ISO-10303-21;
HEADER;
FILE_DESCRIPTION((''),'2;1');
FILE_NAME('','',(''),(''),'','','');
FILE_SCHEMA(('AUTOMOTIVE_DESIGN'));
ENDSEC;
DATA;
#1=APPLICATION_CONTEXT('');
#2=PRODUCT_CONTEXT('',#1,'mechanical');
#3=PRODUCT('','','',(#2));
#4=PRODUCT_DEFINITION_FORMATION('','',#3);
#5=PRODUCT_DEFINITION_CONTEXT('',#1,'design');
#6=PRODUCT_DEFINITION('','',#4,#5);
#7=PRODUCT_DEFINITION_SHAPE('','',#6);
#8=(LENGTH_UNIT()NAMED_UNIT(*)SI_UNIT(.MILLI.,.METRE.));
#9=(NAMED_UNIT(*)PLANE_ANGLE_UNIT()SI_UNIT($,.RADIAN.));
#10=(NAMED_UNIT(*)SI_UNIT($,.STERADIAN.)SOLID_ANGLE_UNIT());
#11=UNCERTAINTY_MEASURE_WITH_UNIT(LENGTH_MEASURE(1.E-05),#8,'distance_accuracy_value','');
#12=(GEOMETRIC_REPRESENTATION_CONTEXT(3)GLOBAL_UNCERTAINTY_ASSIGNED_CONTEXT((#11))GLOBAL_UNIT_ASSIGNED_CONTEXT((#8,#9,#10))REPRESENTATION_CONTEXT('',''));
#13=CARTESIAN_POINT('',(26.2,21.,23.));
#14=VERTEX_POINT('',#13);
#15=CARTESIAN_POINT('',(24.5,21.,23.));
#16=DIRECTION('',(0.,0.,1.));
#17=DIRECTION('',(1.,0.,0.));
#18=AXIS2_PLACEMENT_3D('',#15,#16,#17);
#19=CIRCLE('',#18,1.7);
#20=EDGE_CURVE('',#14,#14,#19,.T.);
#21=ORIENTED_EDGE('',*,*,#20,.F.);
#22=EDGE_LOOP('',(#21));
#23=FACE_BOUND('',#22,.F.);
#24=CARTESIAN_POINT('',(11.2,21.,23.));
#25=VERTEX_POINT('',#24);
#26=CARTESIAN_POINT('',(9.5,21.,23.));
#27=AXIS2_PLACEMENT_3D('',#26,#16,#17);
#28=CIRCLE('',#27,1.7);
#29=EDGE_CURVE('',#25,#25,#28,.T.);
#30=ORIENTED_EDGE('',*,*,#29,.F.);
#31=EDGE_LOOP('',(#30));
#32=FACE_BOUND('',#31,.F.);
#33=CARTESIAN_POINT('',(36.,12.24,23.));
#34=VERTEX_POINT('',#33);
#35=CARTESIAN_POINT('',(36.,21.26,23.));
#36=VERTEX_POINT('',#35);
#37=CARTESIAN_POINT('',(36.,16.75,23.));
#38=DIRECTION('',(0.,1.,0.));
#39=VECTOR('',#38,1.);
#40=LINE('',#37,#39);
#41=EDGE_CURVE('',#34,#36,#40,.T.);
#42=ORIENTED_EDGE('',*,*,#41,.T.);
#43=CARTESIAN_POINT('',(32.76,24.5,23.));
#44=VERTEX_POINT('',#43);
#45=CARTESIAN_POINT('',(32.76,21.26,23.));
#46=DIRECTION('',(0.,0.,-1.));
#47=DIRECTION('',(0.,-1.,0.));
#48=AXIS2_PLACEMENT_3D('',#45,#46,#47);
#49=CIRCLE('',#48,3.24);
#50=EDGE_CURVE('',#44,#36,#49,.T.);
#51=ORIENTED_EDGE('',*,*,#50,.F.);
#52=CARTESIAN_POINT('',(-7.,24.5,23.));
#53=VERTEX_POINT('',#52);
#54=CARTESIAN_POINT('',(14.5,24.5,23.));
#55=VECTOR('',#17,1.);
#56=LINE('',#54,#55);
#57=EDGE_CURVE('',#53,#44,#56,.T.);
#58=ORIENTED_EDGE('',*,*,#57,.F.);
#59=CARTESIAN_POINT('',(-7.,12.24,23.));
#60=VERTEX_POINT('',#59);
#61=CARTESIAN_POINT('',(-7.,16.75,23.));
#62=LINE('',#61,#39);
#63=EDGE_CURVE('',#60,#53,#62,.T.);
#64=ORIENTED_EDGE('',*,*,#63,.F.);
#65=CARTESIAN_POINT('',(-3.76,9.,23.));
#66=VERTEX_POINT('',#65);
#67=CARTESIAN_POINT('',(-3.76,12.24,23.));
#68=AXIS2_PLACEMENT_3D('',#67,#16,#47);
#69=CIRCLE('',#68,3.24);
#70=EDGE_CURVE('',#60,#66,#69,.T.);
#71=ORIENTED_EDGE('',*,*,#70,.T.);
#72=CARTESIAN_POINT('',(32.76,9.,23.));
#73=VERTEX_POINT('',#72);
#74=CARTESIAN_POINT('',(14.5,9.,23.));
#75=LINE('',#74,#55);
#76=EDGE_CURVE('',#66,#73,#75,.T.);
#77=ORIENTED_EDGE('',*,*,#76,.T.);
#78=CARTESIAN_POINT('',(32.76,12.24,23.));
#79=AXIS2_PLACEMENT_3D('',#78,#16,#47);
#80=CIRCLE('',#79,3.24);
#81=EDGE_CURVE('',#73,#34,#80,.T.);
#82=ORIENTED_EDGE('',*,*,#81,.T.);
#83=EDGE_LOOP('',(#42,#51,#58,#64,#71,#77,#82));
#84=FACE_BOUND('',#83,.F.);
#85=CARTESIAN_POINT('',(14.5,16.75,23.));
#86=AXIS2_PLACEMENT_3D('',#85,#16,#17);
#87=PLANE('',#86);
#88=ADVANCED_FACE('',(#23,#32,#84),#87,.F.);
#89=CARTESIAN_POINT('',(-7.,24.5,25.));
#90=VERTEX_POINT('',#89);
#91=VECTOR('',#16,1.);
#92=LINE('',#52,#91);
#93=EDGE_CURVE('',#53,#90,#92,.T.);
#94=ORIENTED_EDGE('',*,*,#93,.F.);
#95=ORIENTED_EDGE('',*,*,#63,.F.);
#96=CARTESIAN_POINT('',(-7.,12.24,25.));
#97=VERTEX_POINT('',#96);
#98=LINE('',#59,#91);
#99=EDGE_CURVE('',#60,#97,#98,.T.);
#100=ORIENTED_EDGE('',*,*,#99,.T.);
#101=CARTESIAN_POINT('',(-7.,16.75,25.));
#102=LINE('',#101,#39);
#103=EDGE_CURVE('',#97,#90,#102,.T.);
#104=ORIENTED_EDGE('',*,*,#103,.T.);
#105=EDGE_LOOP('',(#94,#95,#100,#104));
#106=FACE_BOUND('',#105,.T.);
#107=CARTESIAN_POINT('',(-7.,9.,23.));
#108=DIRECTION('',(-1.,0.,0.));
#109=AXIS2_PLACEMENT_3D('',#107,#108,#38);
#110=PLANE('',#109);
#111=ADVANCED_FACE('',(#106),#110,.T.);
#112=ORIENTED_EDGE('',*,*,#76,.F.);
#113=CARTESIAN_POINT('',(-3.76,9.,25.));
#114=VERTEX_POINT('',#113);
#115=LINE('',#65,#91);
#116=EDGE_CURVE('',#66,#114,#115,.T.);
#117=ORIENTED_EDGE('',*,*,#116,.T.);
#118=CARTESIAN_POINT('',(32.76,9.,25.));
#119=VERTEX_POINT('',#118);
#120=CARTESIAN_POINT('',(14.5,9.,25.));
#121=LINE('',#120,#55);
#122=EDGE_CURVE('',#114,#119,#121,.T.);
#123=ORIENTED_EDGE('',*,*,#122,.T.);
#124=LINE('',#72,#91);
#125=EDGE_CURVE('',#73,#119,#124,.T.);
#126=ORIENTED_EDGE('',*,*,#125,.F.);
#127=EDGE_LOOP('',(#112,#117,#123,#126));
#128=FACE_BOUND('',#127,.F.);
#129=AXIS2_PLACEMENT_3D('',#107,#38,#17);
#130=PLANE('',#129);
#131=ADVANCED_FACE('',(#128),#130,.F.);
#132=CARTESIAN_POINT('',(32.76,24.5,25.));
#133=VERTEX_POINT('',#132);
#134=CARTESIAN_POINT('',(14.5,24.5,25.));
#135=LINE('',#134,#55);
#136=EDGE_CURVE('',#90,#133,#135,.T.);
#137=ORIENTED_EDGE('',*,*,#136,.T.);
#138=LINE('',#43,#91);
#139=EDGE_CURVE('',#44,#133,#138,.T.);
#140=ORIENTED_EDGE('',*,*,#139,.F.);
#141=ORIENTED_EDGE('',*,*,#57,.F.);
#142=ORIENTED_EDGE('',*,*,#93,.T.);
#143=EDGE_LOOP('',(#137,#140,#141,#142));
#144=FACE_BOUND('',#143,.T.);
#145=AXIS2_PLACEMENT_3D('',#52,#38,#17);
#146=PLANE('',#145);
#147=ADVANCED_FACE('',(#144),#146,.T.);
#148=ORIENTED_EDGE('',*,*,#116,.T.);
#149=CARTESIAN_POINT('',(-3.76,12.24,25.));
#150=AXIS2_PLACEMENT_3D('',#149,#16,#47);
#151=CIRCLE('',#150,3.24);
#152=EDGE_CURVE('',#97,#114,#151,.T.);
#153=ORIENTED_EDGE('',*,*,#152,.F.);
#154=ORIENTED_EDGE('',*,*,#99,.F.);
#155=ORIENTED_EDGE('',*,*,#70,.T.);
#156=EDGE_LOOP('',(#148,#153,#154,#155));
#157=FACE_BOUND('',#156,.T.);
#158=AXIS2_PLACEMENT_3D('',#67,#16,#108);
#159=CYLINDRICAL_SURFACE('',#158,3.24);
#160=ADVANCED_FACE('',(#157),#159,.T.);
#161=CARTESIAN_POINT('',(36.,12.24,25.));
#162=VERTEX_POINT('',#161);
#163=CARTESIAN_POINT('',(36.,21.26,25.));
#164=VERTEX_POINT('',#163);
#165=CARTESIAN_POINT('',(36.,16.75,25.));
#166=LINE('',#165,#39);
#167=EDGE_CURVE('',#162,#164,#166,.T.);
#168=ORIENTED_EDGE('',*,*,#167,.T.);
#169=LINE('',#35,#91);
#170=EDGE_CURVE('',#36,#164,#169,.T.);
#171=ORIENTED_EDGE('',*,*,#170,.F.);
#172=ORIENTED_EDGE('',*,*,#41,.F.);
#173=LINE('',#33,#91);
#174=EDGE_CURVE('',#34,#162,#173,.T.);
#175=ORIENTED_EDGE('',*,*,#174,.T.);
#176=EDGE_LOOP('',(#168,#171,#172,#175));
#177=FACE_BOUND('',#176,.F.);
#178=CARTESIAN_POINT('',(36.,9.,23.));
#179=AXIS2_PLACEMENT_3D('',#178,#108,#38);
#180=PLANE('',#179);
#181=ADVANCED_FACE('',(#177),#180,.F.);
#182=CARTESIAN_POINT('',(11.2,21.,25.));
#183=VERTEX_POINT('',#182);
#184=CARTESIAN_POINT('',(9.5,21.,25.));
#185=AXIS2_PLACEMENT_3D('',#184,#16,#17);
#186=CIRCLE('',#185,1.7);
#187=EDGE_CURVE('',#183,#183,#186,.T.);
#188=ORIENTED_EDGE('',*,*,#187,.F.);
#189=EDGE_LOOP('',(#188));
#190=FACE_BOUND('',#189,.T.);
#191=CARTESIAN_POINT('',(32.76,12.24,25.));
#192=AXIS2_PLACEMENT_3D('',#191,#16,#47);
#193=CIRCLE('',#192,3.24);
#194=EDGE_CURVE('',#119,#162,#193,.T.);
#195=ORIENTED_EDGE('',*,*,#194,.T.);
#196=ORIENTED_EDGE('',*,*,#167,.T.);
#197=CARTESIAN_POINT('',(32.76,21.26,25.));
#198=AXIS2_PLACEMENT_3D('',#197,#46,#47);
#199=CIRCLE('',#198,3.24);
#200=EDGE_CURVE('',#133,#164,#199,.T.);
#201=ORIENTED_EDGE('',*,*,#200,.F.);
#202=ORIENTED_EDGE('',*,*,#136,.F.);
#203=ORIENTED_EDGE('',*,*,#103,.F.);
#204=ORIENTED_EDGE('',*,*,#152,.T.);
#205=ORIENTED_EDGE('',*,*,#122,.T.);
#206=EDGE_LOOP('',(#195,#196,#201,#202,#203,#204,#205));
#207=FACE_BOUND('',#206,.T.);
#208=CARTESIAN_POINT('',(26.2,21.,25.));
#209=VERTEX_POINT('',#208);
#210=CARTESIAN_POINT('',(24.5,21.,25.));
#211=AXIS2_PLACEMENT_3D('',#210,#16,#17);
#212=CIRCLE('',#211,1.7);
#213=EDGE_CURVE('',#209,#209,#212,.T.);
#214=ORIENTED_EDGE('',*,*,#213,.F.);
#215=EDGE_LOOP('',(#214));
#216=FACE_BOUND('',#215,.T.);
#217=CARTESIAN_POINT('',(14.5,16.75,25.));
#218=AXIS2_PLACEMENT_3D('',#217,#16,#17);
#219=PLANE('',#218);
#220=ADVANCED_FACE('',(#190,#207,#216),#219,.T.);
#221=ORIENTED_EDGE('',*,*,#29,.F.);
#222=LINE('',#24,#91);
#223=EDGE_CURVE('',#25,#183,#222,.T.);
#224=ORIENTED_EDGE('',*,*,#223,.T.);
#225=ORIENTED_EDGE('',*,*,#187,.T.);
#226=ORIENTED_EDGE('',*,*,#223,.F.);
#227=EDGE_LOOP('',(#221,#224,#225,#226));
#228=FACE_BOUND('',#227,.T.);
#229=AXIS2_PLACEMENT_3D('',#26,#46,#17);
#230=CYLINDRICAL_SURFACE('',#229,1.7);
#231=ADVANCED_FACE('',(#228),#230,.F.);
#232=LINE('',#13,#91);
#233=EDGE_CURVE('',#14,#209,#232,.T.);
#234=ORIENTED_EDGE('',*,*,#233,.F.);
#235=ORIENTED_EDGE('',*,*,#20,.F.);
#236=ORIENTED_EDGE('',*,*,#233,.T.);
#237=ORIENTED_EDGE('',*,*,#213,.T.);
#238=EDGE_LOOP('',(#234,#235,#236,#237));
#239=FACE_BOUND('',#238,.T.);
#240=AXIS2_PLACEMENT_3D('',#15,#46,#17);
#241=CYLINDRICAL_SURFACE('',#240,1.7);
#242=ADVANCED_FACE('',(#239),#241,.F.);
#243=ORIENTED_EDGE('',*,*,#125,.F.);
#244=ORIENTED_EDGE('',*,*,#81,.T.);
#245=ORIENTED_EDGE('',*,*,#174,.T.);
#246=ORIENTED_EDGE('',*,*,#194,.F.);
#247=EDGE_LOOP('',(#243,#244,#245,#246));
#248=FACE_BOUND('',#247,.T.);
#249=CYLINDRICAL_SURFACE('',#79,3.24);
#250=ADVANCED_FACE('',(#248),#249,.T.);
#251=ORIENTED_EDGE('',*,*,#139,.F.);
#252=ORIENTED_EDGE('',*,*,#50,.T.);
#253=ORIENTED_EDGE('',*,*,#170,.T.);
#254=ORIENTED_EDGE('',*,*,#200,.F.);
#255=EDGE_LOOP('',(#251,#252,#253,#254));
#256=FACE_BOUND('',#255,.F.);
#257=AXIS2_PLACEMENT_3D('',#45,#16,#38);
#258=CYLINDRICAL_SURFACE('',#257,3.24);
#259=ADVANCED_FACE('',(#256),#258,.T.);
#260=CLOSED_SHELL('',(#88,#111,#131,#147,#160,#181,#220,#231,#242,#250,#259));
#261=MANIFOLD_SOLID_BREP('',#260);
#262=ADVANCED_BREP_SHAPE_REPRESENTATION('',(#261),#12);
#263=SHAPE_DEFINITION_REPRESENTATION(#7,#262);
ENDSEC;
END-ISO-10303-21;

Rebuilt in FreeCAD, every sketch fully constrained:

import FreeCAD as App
import Part
import Sketcher

V = App.Vector
Q = App.Units.Quantity


def edges_at(feature, points):
    """Names of the edges that pass closest to the given points."""
    edges = feature.Shape.Edges
    near = lambda p: min(range(len(edges)), key=lambda i: edges[i].distToShape(Part.Vertex(*p))[0])
    return sorted({f"Edge{near(p) + 1}" for p in points})

doc = App.newDocument("Part")
body = doc.addObject("PartDesign::Body", "Body")

# Sketch on XY plane
sketch1 = body.newObject("Sketcher::SketchObject", "Sketch")
sketch1.AttachmentSupport = (doc.getObject("XY_Plane"), [""])
sketch1.MapMode = "FlatFace"
sketch1.AttachmentOffset = App.Placement(V(0, 0, 23), App.Rotation())
sketch1.addGeometry(Part.Circle(V(24.5, 21, 0), V(0, 0, 1), 1.7), False)
sketch1.addConstraint(Sketcher.Constraint("Diameter", 0, Q("3.4 mm")))
sketch1.addConstraint(Sketcher.Constraint("DistanceY", -1, 1, 0, 3, Q("21 mm")))
sketch1.addConstraint(Sketcher.Constraint("DistanceX", -1, 1, 0, 3, Q("24.5 mm")))
pad1 = body.newObject("PartDesign::Pad", "Pad")
pad1.Profile = sketch1
pad1.Length = 2
body2 = doc.addObject("PartDesign::Body", "Body001")

# Sketch on XY plane
sketch2 = body2.newObject("Sketcher::SketchObject", "Sketch001")
sketch2.AttachmentSupport = (doc.getObject("XY_Plane001"), [""])
sketch2.MapMode = "FlatFace"
sketch2.AttachmentOffset = App.Placement(V(0, 0, 23), App.Rotation())
sketch2.addGeometry(Part.Circle(V(9.5, 21, 0), V(0, 0, 1), 1.7), False)
sketch2.addConstraint(Sketcher.Constraint("Diameter", 0, Q("3.4 mm")))
sketch2.addConstraint(Sketcher.Constraint("DistanceY", -1, 1, 0, 3, Q("21 mm")))
sketch2.addConstraint(Sketcher.Constraint("DistanceX", -1, 1, 0, 3, Q("9.5 mm")))
pad2 = body2.newObject("PartDesign::Pad", "Pad001")
pad2.Profile = sketch2
pad2.Length = 2
body3 = doc.addObject("PartDesign::Body", "Body002")

# Sketch on XY plane
sketch3 = body3.newObject("Sketcher::SketchObject", "Sketch002")
sketch3.AttachmentSupport = (doc.getObject("XY_Plane002"), [""])
sketch3.MapMode = "FlatFace"
sketch3.AttachmentOffset = App.Placement(V(0, 0, 23), App.Rotation())
sketch3.addGeometry(Part.LineSegment(V(-7, 24, 0), V(-7, 9, 0)), False)
sketch3.addGeometry(Part.LineSegment(V(-7, 9, 0), V(36, 9, 0)), False)
sketch3.addGeometry(Part.LineSegment(V(36, 9, 0), V(36, 24, 0)), False)
sketch3.addGeometry(Part.LineSegment(V(36, 24, 0), V(-7, 24, 0)), False)
sketch3.addConstraint(Sketcher.Constraint("Coincident", 0, 2, 1, 1))
sketch3.addConstraint(Sketcher.Constraint("Coincident", 1, 2, 2, 1))
sketch3.addConstraint(Sketcher.Constraint("Coincident", 2, 2, 3, 1))
sketch3.addConstraint(Sketcher.Constraint("Coincident", 3, 2, 0, 1))
sketch3.addConstraint(Sketcher.Constraint("Vertical", 0))
sketch3.addConstraint(Sketcher.Constraint("Horizontal", 1))
sketch3.addConstraint(Sketcher.Constraint("Vertical", 2))
sketch3.addConstraint(Sketcher.Constraint("Horizontal", 3))
sketch3.addConstraint(Sketcher.Constraint("DistanceX", 1, 1, 1, 2, Q("43 mm")))
sketch3.addConstraint(Sketcher.Constraint("DistanceY", 0, 2, 0, 1, Q("15.5 mm")))
sketch3.addConstraint(Sketcher.Constraint("DistanceX", 0, 2, -1, 1, Q("7 mm")))
sketch3.addConstraint(Sketcher.Constraint("DistanceY", -1, 1, 0, 2, Q("9 mm")))
pad3 = body3.newObject("PartDesign::Pad", "Pad002")
pad3.Profile = sketch3
pad3.Length = 2
doc.recompute()

boolean = body3.newObject("PartDesign::Boolean", "Boolean")
boolean.Type = "Cut"
boolean.addObjects([body2])
doc.recompute()

boolean2 = body3.newObject("PartDesign::Boolean", "Boolean001")
boolean2.Type = "Cut"
boolean2.addObjects([body])
doc.recompute()

fillet = body3.newObject("PartDesign::Fillet", "Fillet")
fillet.Base = (boolean2, edges_at(boolean2, [(-7, 9, 24), (36, 9, 24), (36, 24.5, 24)]))
fillet.Radius = 3.24

doc.recompute()
